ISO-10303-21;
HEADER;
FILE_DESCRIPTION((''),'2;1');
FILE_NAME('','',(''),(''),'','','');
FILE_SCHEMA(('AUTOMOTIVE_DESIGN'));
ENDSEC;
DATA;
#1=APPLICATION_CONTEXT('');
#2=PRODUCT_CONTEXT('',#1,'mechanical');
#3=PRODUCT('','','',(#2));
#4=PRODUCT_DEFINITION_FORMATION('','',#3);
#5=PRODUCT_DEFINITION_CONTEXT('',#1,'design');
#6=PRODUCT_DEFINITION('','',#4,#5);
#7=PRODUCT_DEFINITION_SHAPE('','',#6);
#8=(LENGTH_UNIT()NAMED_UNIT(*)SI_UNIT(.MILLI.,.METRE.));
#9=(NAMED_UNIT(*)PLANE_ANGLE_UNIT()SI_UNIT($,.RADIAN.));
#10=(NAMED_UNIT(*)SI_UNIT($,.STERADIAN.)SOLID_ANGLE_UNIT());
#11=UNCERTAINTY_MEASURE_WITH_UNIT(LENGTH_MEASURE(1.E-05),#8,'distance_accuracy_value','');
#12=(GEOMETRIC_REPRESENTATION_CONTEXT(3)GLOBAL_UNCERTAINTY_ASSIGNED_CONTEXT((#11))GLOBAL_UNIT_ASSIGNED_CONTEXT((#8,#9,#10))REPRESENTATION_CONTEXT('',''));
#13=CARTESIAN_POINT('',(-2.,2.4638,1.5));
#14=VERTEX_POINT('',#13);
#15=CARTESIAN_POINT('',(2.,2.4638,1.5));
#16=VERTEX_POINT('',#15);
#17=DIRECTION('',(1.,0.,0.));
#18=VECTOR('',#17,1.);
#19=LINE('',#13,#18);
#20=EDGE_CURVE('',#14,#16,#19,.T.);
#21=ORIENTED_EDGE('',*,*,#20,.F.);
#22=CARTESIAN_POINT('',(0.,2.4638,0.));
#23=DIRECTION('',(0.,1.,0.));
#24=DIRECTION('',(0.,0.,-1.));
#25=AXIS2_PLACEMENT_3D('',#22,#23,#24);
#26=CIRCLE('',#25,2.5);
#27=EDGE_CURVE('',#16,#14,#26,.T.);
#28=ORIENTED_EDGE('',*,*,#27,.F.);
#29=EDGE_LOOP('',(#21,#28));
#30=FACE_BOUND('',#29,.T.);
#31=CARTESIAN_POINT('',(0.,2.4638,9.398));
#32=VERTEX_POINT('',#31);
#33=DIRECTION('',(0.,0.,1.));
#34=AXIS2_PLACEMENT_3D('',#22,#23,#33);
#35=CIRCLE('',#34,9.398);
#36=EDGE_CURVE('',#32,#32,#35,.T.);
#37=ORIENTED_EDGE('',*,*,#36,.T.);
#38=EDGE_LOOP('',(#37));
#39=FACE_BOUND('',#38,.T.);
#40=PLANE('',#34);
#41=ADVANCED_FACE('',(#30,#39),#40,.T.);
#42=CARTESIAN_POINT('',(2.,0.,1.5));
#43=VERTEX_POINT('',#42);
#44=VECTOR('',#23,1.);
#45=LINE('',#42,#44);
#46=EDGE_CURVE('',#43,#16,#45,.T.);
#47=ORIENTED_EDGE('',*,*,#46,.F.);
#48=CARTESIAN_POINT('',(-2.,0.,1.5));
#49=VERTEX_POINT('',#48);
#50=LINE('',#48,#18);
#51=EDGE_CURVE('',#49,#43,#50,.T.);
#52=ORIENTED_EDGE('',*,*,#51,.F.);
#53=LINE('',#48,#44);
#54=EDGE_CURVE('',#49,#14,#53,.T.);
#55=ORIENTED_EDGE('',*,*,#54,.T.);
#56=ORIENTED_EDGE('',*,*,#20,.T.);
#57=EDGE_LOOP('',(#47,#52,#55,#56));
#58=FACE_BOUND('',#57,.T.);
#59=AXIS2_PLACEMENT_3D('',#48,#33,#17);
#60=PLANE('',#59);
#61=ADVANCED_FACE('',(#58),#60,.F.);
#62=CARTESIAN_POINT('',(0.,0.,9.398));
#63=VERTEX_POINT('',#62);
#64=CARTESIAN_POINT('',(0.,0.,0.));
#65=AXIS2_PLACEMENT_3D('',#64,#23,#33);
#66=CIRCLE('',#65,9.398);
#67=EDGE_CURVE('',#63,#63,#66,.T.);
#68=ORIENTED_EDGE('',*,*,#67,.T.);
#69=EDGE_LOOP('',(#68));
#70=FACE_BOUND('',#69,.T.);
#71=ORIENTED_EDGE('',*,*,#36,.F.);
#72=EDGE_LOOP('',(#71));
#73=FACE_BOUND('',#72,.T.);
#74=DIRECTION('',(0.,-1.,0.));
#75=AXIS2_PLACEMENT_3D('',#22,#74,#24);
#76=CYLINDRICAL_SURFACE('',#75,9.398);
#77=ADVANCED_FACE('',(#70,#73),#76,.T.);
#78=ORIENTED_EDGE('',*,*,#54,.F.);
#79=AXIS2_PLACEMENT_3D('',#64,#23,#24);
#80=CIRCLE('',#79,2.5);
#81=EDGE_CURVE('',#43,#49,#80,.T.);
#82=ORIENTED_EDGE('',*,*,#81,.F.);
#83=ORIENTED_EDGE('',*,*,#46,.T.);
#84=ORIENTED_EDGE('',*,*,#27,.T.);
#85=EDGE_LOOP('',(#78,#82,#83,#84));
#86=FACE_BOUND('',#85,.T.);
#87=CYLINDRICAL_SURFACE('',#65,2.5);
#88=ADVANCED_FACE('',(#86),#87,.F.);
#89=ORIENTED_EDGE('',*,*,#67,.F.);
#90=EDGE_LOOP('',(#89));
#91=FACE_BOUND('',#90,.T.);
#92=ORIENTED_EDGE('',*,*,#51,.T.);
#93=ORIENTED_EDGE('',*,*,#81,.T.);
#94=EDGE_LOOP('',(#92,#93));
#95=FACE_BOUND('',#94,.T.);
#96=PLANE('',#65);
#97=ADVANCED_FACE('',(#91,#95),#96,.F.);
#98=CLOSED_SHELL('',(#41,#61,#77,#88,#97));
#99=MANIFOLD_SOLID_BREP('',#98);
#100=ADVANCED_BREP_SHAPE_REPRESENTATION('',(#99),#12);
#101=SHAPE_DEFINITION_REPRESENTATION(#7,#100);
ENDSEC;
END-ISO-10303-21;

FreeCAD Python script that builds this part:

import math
import FreeCAD as App
import Part
import Sketcher

V = App.Vector
Q = App.Units.Quantity

doc = App.newDocument("Part")
body = doc.addObject("PartDesign::Body", "Body")

# Sketch on XZ plane
sketch1 = body.newObject("Sketcher::SketchObject", "Sketch")
sketch1.AttachmentSupport = (doc.getObject("XZ_Plane"), [""])
sketch1.MapMode = "FlatFace"
sketch1.addGeometry(Part.Circle(V(0, 0, 0), V(0, 0, 1), 9.398), False)
sketch1.addConstraint([
    Sketcher.Constraint("Coincident", 0, 3, -1, 1),
    Sketcher.Constraint("Diameter", 0, Q("18.796 mm")),
])
pad1 = body.newObject("PartDesign::Pad", "Pad")
pad1.Profile = sketch1
pad1.Length = 2.4638
pad1.Reversed = True

# Sketch on XZ plane
sketch2 = body.newObject("Sketcher::SketchObject", "Sketch001")
sketch2.AttachmentSupport = (doc.getObject("XZ_Plane"), [""])
sketch2.MapMode = "FlatFace"
sketch2.AttachmentOffset = App.Placement(V(0, 0, -2.4638), App.Rotation())
sketch2.addGeometry([
    Part.LineSegment(V(-2, 1.5, 0), V(2, 1.5, 0)),
    Part.ArcOfCircle(Part.Circle(V(0, 0, 0), V(0, 0, 1), 2.5), math.radians(143.130102), math.radians(396.869898)),
], False)
sketch2.addConstraint([
    Sketcher.Constraint("Coincident", 0, 1, 1, 1),
    Sketcher.Constraint("Coincident", 1, 2, 0, 2),
    Sketcher.Constraint("Horizontal", 0),
    Sketcher.Constraint("Coincident", 1, 3, -1, 1),
    Sketcher.Constraint("Radius", 1, Q("2.5 mm")),
    Sketcher.Constraint("DistanceX", 0, 1, 0, 2, Q("4 mm")),
])
pocket1 = body.newObject("PartDesign::Pocket", "Pocket")
pocket1.Profile = sketch2
pocket1.Type = "ThroughAll"
pocket1.Reversed = True

doc.recompute()
